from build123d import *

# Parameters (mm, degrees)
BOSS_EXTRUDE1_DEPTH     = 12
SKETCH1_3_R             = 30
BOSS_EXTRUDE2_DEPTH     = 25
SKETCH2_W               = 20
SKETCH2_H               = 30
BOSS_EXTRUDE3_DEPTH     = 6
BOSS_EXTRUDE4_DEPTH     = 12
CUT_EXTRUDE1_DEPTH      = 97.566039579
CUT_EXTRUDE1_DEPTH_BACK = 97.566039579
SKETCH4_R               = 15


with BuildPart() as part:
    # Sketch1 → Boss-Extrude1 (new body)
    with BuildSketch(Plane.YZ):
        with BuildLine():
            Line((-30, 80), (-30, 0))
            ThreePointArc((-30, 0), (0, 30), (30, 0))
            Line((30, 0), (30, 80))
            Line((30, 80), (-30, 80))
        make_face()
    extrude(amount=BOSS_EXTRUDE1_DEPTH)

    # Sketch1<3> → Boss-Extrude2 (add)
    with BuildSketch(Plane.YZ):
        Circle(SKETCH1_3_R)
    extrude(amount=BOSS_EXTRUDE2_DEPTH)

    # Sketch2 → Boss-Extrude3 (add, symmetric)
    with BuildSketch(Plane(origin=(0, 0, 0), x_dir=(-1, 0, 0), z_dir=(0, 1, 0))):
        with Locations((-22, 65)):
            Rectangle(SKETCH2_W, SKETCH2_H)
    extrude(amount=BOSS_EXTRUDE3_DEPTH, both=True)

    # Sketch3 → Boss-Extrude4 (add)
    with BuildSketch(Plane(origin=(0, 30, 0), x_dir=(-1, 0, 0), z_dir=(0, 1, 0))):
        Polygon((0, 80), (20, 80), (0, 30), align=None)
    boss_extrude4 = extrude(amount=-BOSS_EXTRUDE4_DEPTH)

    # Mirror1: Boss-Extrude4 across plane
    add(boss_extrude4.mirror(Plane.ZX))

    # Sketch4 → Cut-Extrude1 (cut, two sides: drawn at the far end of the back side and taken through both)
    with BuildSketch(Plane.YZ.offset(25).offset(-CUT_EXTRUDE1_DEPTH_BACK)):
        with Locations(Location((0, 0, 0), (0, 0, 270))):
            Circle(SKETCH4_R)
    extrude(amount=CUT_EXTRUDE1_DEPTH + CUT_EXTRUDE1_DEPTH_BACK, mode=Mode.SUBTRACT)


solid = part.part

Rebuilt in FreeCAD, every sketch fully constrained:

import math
import FreeCAD as App
import Part
import Sketcher
from FreeCAD import Vector
Q = App.Units.Quantity

doc = App.newDocument("Part")
body = doc.addObject("PartDesign::Body", "Body")

sketch1 = body.newObject("Sketcher::SketchObject", "Sketch")
sketch1.AttachmentSupport = (doc.getObject("YZ_Plane"), [""])
sketch1.MapMode = "FlatFace"
sketch1.addGeometry([
    Part.LineSegment(Vector(-30, 80, 0), Vector(-30, 0, 0)),
    Part.ArcOfCircle(Part.Circle(Vector(0, 0, 0), Vector(0, 0, 1), 30), math.radians(0), math.radians(180)),
    Part.LineSegment(Vector(30, 0, 0), Vector(30, 80, 0)),
    Part.LineSegment(Vector(30, 80, 0), Vector(-30, 80, 0)),
], False)
sketch1.addConstraint([
    Sketcher.Constraint("Tangent", 0, 2, 1, 2),
    Sketcher.Constraint("Tangent", 1, 1, 2, 1),
    Sketcher.Constraint("Coincident", 2, 2, 3, 1),
    Sketcher.Constraint("Coincident", 3, 2, 0, 1),
    Sketcher.Constraint("Vertical", 0),
    Sketcher.Constraint("Vertical", 2),
    Sketcher.Constraint("Horizontal", 3),
    Sketcher.Constraint("Coincident", 1, 3, -1, 1),
    Sketcher.Constraint("Radius", 1, Q("30 mm")),
    Sketcher.Constraint("DistanceY", 0, 2, 0, 1, Q("80 mm")),
])
pad1 = body.newObject("PartDesign::Pad", "Pad")
pad1.Profile = sketch1
pad1.Length = 12

sketch2 = body.newObject("Sketcher::SketchObject", "Sketch001")
sketch2.AttachmentSupport = (doc.getObject("YZ_Plane"), [""])
sketch2.MapMode = "FlatFace"
sketch2.addGeometry(Part.Circle(Vector(0, 0, 0), Vector(0, 0, 1), 30), False)
sketch2.addConstraint([
    Sketcher.Constraint("Coincident", 0, 3, -1, 1),
    Sketcher.Constraint("Diameter", 0, Q("60 mm")),
])
pad2 = body.newObject("PartDesign::Pad", "Pad001")
pad2.Profile = sketch2
pad2.Length = 25

sketch3 = body.newObject("Sketcher::SketchObject", "Sketch002")
sketch3.AttachmentSupport = (doc.getObject("XZ_Plane"), [""])
sketch3.MapMode = "FlatFace"
sketch3.addGeometry([
    Part.LineSegment(Vector(32, 80, 0), Vector(32, 50, 0)),
    Part.LineSegment(Vector(32, 50, 0), Vector(12, 50, 0)),
    Part.LineSegment(Vector(12, 50, 0), Vector(12, 80, 0)),
    Part.LineSegment(Vector(12, 80, 0), Vector(32, 80, 0)),
], False)
sketch3.addConstraint([
    Sketcher.Constraint("Coincident", 0, 2, 1, 1),
    Sketcher.Constraint("Coincident", 1, 2, 2, 1),
    Sketcher.Constraint("Coincident", 2, 2, 3, 1),
    Sketcher.Constraint("Coincident", 3, 2, 0, 1),
    Sketcher.Constraint("Vertical", 0),
    Sketcher.Constraint("Horizontal", 1),
    Sketcher.Constraint("Vertical", 2),
    Sketcher.Constraint("Horizontal", 3),
    Sketcher.Constraint("DistanceX", 1, 2, 1, 1, Q("20 mm")),
    Sketcher.Constraint("DistanceY", 0, 2, 0, 1, Q("30 mm")),
    Sketcher.Constraint("DistanceX", -1, 1, 0, 2, Q("32 mm")),
    Sketcher.Constraint("DistanceY", -1, 1, 0, 2, Q("50 mm")),
])
pad3 = body.newObject("PartDesign::Pad", "Pad002")
pad3.Profile = sketch3
pad3.Length = 12
pad3.Midplane = True

sketch4 = body.newObject("Sketcher::SketchObject", "Sketch003")
sketch4.AttachmentSupport = (doc.getObject("XZ_Plane"), [""])
sketch4.MapMode = "FlatFace"
sketch4.AttachmentOffset = App.Placement(Vector(0, 0, -30), App.Rotation())
sketch4.addGeometry([
    Part.LineSegment(Vector(-20, 80, 0), Vector(0, 80, 0)),
    Part.LineSegment(Vector(0, 80, 0), Vector(0, 30, 0)),
    Part.LineSegment(Vector(0, 30, 0), Vector(-20, 80, 0)),
], False)
sketch4.addConstraint([
    Sketcher.Constraint("Coincident", 0, 2, 1, 1),
    Sketcher.Constraint("Coincident", 1, 2, 2, 1),
    Sketcher.Constraint("Coincident", 2, 2, 0, 1),
    Sketcher.Constraint("Horizontal", 0),
    Sketcher.Constraint("Vertical", 1),
    Sketcher.Constraint("PointOnObject", 0, 2, -2),
    Sketcher.Constraint("DistanceX", 0, 1, 0, 2, Q("20 mm")),
    Sketcher.Constraint("DistanceY", 1, 2, 1, 1, Q("50 mm")),
    Sketcher.Constraint("DistanceY", -1, 1, 0, 2, Q("80 mm")),
])
pad4 = body.newObject("PartDesign::Pad", "Pad003")
pad4.Profile = sketch4
pad4.Length = 12
doc.recompute()

mirrored = body.newObject("PartDesign::Mirrored", "Mirrored")
mirrored.Originals = [pad4]
mirrored.MirrorPlane = (doc.getObject("XZ_Plane"), [""])
body.Tip = mirrored

sketch5 = body.newObject("Sketcher::SketchObject", "Sketch004")
sketch5.AttachmentSupport = (doc.getObject("YZ_Plane"), [""])
sketch5.MapMode = "FlatFace"
sketch5.AttachmentOffset = App.Placement(Vector(0, 0, 25), App.Rotation())
sketch5.addGeometry(Part.Circle(Vector(0, 0, 0), Vector(0, 0, 1), 15), False)
sketch5.addConstraint([
    Sketcher.Constraint("Coincident", 0, 3, -1, 1),
    Sketcher.Constraint("Diameter", 0, Q("30 mm")),
])
pocket1 = body.newObject("PartDesign::Pocket", "Pocket")
pocket1.Profile = sketch5
pocket1.Type = "ThroughAll"
pocket1.Midplane = True

doc.recompute()
